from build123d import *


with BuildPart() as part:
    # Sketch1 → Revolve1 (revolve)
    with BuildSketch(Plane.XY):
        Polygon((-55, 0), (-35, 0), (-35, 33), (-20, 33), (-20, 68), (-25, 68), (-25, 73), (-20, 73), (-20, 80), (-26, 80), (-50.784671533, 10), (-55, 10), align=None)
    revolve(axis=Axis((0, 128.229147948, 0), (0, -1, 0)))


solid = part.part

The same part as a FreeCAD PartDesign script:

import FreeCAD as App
import Part
import Sketcher
from FreeCAD import Vector

doc = App.newDocument("Part")
body = doc.addObject("PartDesign::Body", "Body")

# Sketch on XY plane
sketch1 = body.newObject("Sketcher::SketchObject", "Sketch")
sketch1.AttachmentSupport = (doc.getObject("XY_Plane"), [""])
sketch1.MapMode = "FlatFace"
sketch1.addGeometry(Part.LineSegment(Vector(-55, 0, 0), Vector(-35, 0, 0)), False)
sketch1.addGeometry(Part.LineSegment(Vector(-35, 0, 0), Vector(-35, 33, 0)), False)
sketch1.addGeometry(Part.LineSegment(Vector(-35, 33, 0), Vector(-20, 33, 0)), False)
sketch1.addGeometry(Part.LineSegment(Vector(-20, 33, 0), Vector(-20, 68, 0)), False)
sketch1.addGeometry(Part.LineSegment(Vector(-20, 68, 0), Vector(-25, 68, 0)), False)
sketch1.addGeometry(Part.LineSegment(Vector(-25, 68, 0), Vector(-25, 73, 0)), False)
sketch1.addGeometry(Part.LineSegment(Vector(-25, 73, 0), Vector(-20, 73, 0)), False)
sketch1.addGeometry(Part.LineSegment(Vector(-20, 73, 0), Vector(-20, 80, 0)), False)
sketch1.addGeometry(Part.LineSegment(Vector(-20, 80, 0), Vector(-26, 80, 0)), False)
sketch1.addGeometry(Part.LineSegment(Vector(-26, 80, 0), Vector(-50.8, 10, 0)), False)
sketch1.addGeometry(Part.LineSegment(Vector(-50.8, 10, 0), Vector(-55, 10, 0)), False)
sketch1.addGeometry(Part.LineSegment(Vector(-55, 10, 0), Vector(-55, 0, 0)), False)
sketch1.addConstraint(Sketcher.Constraint("Coincident", 0, 2, 1, 1))
sketch1.addConstraint(Sketcher.Constraint("Coincident", 1, 2, 2, 1))
sketch1.addConstraint(Sketcher.Constraint("Coincident", 2, 2, 3, 1))
sketch1.addConstraint(Sketcher.Constraint("Coincident", 3, 2, 4, 1))
sketch1.addConstraint(Sketcher.Constraint("Coincident", 4, 2, 5, 1))
sketch1.addConstraint(Sketcher.Constraint("Coincident", 5, 2, 6, 1))
sketch1.addConstraint(Sketcher.Constraint("Coincident", 6, 2, 7, 1))
sketch1.addConstraint(Sketcher.Constraint("Coincident", 7, 2, 8, 1))
sketch1.addConstraint(Sketcher.Constraint("Coincident", 8, 2, 9, 1))
sketch1.addConstraint(Sketcher.Constraint("Coincident", 9, 2, 10, 1))
sketch1.addConstraint(Sketcher.Constraint("Coincident", 10, 2, 11, 1))
sketch1.addConstraint(Sketcher.Constraint("Coincident", 11, 2, 0, 1))
sketch1.addConstraint(Sketcher.Constraint("Horizontal", 0))
sketch1.addConstraint(Sketcher.Constraint("Vertical", 1))
sketch1.addConstraint(Sketcher.Constraint("Horizontal", 2))
sketch1.addConstraint(Sketcher.Constraint("Vertical", 3))
sketch1.addConstraint(Sketcher.Constraint("Horizontal", 4))
sketch1.addConstraint(Sketcher.Constraint("Vertical", 5))
sketch1.addConstraint(Sketcher.Constraint("Horizontal", 6))
sketch1.addConstraint(Sketcher.Constraint("Vertical", 7))
sketch1.addConstraint(Sketcher.Constraint("Horizontal", 8))
sketch1.addConstraint(Sketcher.Constraint("Horizontal", 10))
sketch1.addConstraint(Sketcher.Constraint("Vertical", 11))
sketch1.addConstraint(Sketcher.Constraint("PointOnObject", 0, 2, -1))
sketch1.addConstraint(Sketcher.Constraint("Vertical", 3, 2, 6, 2))
sketch1.addConstraint(Sketcher.Constraint("Equal", 6, 5))
sketch1.addConstraint(Sketcher.Constraint("DistanceX", 0, 1, 0, 2, 20.0))
sketch1.addConstraint(Sketcher.Constraint("DistanceX", 2, 1, 2, 2, 15.0))
sketch1.addConstraint(Sketcher.Constraint("DistanceX", 4, 2, 4, 1, 5.0))
sketch1.addConstraint(Sketcher.Constraint("DistanceX", 8, 2, 8, 1, 6.0))
sketch1.addConstraint(Sketcher.Constraint("DistanceY", 1, 1, 1, 2, 33.0))
sketch1.addConstraint(Sketcher.Constraint("DistanceY", 3, 1, 3, 2, 35.0))
sketch1.addConstraint(Sketcher.Constraint("DistanceY", 7, 1, 7, 2, 7.0))
sketch1.addConstraint(Sketcher.Constraint("DistanceY", 11, 2, 11, 1, 10.0))
sketch1.addConstraint(Sketcher.Constraint("DistanceX", 0, 2, -1, 1, 35.0))
sketch1.addConstraint(Sketcher.Constraint("DistanceX", 10, 2, 10, 1, 4.215328))
revolution = body.newObject("PartDesign::Revolution", "Revolution")
revolution.Profile = sketch1
revolution.ReferenceAxis = (sketch1, ["V_Axis"])
revolution.Angle = 360

doc.recompute()
